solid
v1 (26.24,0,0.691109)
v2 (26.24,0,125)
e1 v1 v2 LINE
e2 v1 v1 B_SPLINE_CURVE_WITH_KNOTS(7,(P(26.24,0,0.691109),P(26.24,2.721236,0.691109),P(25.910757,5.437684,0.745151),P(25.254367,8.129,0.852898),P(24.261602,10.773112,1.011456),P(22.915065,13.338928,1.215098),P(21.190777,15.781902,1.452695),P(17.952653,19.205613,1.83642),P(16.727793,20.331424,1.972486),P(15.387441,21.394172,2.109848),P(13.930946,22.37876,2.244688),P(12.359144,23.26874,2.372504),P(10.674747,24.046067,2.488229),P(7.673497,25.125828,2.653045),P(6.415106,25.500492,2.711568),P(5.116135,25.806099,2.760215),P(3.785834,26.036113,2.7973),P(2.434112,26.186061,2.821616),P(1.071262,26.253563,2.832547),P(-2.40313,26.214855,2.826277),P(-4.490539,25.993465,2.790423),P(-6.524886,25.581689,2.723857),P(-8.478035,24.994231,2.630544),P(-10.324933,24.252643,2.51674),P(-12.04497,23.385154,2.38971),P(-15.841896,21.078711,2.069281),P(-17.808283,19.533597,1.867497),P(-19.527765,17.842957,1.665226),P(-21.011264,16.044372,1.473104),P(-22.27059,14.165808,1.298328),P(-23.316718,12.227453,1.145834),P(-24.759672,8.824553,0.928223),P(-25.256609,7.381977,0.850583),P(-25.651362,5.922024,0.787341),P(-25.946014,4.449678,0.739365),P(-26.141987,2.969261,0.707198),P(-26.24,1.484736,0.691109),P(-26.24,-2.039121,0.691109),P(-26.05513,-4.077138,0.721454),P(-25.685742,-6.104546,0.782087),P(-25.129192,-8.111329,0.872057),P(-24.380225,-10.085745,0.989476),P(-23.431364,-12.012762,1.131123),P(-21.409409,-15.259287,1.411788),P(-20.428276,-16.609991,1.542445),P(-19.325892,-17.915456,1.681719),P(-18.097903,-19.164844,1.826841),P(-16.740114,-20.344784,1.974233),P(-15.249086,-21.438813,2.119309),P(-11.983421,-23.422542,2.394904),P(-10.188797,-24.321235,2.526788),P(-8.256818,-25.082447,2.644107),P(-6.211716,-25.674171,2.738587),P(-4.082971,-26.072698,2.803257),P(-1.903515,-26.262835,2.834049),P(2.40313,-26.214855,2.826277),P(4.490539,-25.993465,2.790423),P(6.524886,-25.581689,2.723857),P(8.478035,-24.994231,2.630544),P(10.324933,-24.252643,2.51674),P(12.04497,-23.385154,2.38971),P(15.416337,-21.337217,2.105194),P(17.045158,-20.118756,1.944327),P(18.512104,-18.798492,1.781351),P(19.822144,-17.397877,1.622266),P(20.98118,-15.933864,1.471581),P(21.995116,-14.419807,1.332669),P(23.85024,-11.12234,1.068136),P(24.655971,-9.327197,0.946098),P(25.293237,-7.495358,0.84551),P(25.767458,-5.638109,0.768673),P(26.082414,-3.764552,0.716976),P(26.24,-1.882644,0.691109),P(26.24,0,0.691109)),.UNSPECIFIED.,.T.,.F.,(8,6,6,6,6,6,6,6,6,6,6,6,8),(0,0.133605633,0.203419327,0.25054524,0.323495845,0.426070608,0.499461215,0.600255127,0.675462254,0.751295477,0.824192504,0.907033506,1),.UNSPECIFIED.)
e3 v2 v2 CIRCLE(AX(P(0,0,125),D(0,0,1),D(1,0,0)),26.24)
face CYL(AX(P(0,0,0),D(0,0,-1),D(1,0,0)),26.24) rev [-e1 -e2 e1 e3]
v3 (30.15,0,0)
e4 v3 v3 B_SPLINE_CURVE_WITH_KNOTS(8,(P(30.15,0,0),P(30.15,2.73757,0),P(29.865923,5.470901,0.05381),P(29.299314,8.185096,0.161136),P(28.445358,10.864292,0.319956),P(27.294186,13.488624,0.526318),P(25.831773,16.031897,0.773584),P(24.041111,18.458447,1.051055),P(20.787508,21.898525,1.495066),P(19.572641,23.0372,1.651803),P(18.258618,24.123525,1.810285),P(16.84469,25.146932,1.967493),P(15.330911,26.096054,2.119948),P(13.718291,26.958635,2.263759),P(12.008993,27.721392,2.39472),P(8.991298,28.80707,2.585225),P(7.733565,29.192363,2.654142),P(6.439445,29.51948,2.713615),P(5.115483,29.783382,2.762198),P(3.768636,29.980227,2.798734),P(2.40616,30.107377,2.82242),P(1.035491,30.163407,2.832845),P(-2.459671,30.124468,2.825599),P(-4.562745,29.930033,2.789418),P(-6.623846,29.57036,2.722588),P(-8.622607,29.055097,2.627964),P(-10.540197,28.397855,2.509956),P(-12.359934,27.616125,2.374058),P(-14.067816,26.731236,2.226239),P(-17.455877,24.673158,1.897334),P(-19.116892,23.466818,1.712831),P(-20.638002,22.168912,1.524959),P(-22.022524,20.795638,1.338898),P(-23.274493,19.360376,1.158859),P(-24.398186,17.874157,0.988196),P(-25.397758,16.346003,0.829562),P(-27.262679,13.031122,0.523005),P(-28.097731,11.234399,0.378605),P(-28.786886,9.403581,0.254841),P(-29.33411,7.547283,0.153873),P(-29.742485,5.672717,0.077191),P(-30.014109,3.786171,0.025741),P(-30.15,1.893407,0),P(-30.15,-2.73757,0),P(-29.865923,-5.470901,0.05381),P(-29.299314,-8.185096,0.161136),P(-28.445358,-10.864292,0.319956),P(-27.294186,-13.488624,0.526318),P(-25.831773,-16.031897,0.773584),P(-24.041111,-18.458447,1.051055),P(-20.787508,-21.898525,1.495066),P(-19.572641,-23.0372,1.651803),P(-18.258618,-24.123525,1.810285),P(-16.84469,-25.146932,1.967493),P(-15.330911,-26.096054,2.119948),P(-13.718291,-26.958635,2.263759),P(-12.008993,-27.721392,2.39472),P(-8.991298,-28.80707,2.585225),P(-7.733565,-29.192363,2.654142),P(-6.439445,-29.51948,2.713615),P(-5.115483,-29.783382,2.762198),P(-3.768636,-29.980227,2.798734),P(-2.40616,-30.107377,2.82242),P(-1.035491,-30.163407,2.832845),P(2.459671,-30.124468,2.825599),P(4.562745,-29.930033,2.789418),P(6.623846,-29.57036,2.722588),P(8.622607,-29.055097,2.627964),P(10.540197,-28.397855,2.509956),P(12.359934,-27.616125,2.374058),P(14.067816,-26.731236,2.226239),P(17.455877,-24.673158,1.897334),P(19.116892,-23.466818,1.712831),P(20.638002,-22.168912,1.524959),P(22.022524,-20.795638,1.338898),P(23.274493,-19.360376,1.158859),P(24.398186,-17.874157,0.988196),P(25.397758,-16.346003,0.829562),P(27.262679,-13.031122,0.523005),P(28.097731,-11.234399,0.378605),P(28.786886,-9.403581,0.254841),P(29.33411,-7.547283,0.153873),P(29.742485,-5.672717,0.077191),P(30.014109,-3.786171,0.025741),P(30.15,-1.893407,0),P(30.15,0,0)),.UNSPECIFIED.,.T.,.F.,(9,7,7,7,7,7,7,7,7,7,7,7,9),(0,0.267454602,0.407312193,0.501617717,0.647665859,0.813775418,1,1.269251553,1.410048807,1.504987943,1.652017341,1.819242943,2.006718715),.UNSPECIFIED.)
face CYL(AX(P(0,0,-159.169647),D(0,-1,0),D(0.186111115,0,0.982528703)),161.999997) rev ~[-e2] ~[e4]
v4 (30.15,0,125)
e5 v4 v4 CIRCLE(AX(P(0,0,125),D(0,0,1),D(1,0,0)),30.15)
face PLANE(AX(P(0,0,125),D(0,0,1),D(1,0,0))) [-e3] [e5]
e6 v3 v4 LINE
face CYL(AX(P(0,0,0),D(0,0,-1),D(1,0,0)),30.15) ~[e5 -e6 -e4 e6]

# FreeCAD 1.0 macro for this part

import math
import FreeCAD as App
import Part
import Sketcher
Q = App.Units.Quantity

doc = App.newDocument("Part")
body = doc.addObject("PartDesign::Body", "Body")

# Sketch on XY plane
sketch1 = doc.addObject("Sketcher::SketchObject", "Sketch")
body.addObject(sketch1)
sketch1.AttachmentSupport = (doc.XY_Plane, [""])
sketch1.MapMode = "FlatFace"
sketch1.addGeometry([
    Part.Circle(App.Vector(0, 0, 0), App.Vector(0, 0, 1), 30),
    Part.Circle(App.Vector(0, 0, 0), App.Vector(0, 0, 1), 26),
], False)
sketch1.addConstraint([
    Sketcher.Constraint("Coincident", 0, 3, -1, 1),
    Sketcher.Constraint("Coincident", 1, 3, -1, 1),
    Sketcher.Constraint("Diameter", 0, Q("60.3 mm")),
    Sketcher.Constraint("Diameter", 1, Q("52.48 mm")),
])
pad1 = doc.addObject("PartDesign::Pad", "Pad")
body.addObject(pad1)
pad1.Profile = sketch1
pad1.Length = 125

# Sketch on XZ plane
sketch2 = doc.addObject("Sketcher::SketchObject", "Sketch001")
body.addObject(sketch2)
sketch2.AttachmentSupport = (doc.XZ_Plane, [""])
sketch2.MapMode = "FlatFace"
sketch2.addGeometry([
    Part.ArcOfCircle(Part.Circle(App.Vector(0, -159, 0), App.Vector(0, 0, 1), 162), math.radians(79), math.radians(101)),
    Part.LineSegment(App.Vector(-30, 0, 0), App.Vector(30, 0, 0)),
], False)
sketch2.addConstraint([
    Sketcher.Constraint("Coincident", 0, 1, 1, 2),
    Sketcher.Constraint("Coincident", 1, 1, 0, 2),
    Sketcher.Constraint("Horizontal", 1),
    Sketcher.Constraint("Symmetric", 0, 1, 1, 1, -1, 1),
    Sketcher.Constraint("DistanceX", 1, 1, 1, 2, Q("60.3 mm")),
    Sketcher.Constraint("Radius", 0, Q("161.999997 mm")),
])
pocket1 = doc.addObject("PartDesign::Pocket", "Pocket")
body.addObject(pocket1)
pocket1.Profile = sketch2
pocket1.Length = 100
pocket1.Midplane = True

doc.recompute()
